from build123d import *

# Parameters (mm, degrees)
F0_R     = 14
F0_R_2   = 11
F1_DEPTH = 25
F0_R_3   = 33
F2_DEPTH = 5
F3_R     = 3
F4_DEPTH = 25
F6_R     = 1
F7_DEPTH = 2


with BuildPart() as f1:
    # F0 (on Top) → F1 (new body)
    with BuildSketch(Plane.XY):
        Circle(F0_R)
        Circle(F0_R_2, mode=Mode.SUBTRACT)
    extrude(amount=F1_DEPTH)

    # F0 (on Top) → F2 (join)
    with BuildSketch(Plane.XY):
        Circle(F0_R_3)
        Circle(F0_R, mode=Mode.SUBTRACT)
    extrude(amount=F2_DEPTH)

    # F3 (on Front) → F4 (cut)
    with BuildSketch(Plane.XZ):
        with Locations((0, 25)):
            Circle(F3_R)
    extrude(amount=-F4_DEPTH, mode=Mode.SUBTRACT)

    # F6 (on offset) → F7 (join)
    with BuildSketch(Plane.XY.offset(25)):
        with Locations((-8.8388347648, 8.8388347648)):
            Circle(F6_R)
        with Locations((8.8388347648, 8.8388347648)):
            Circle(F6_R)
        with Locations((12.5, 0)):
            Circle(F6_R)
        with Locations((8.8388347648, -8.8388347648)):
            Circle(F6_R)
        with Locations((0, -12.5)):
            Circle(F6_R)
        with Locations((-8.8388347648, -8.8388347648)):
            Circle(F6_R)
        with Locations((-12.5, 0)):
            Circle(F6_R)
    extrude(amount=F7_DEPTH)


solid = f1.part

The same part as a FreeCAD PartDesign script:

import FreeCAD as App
import Part
import Sketcher
Q = App.Units.Quantity

doc = App.newDocument("Part")
body = doc.addObject("PartDesign::Body", "Body")

sketch1 = body.newObject("Sketcher::SketchObject", "Sketch")
sketch1.AttachmentSupport = (doc.getObject("XY_Plane"), [""])
sketch1.MapMode = "FlatFace"
sketch1.addGeometry(Part.Circle(App.Vector(0, 0, 0), App.Vector(0, 0, 1), 14), False)
sketch1.addGeometry(Part.Circle(App.Vector(0, 0, 0), App.Vector(0, 0, 1), 11), False)
sketch1.addConstraint(Sketcher.Constraint("Coincident", 0, 3, -1, 1))
sketch1.addConstraint(Sketcher.Constraint("Coincident", 1, 3, -1, 1))
sketch1.addConstraint(Sketcher.Constraint("Diameter", 0, Q("28 mm")))
sketch1.addConstraint(Sketcher.Constraint("Diameter", 1, Q("22 mm")))
pad1 = body.newObject("PartDesign::Pad", "Pad")
pad1.Profile = sketch1
pad1.Length = 25

sketch2 = body.newObject("Sketcher::SketchObject", "Sketch001")
sketch2.AttachmentSupport = (doc.getObject("XY_Plane"), [""])
sketch2.MapMode = "FlatFace"
sketch2.addGeometry(Part.Circle(App.Vector(0, 0, 0), App.Vector(0, 0, 1), 33), False)
sketch2.addGeometry(Part.Circle(App.Vector(0, 0, 0), App.Vector(0, 0, 1), 14), False)
sketch2.addConstraint(Sketcher.Constraint("Coincident", 0, 3, -1, 1))
sketch2.addConstraint(Sketcher.Constraint("Coincident", 1, 3, -1, 1))
sketch2.addConstraint(Sketcher.Constraint("Diameter", 0, Q("66 mm")))
sketch2.addConstraint(Sketcher.Constraint("Diameter", 1, Q("28 mm")))
pad2 = body.newObject("PartDesign::Pad", "Pad001")
pad2.Profile = sketch2
pad2.Length = 5

sketch3 = body.newObject("Sketcher::SketchObject", "Sketch002")
sketch3.AttachmentSupport = (doc.getObject("XZ_Plane"), [""])
sketch3.MapMode = "FlatFace"
sketch3.addGeometry(Part.Circle(App.Vector(0, 25, 0), App.Vector(0, 0, 1), 3), False)
sketch3.addConstraint(Sketcher.Constraint("PointOnObject", 0, 3, -2))
sketch3.addConstraint(Sketcher.Constraint("Diameter", 0, Q("6 mm")))
sketch3.addConstraint(Sketcher.Constraint("DistanceY", -1, 1, 0, 3, Q("25 mm")))
pocket1 = body.newObject("PartDesign::Pocket", "Pocket")
pocket1.Profile = sketch3
pocket1.Length = 25

sketch4 = body.newObject("Sketcher::SketchObject", "Sketch003")
sketch4.AttachmentSupport = (doc.getObject("XY_Plane"), [""])
sketch4.MapMode = "FlatFace"
sketch4.AttachmentOffset = App.Placement(App.Vector(0, 0, 25), App.Rotation())
sketch4.addGeometry(Part.Circle(App.Vector(-8.838835, 8.838835, 0), App.Vector(0, 0, 1), 1), False)
sketch4.addGeometry(Part.Circle(App.Vector(8.838835, 8.838835, 0), App.Vector(0, 0, 1), 1), False)
sketch4.addGeometry(Part.Circle(App.Vector(12.5, 0, 0), App.Vector(0, 0, 1), 1), False)
sketch4.addGeometry(Part.Circle(App.Vector(8.838835, -8.838835, 0), App.Vector(0, 0, 1), 1), False)
sketch4.addGeometry(Part.Circle(App.Vector(0, -12.5, 0), App.Vector(0, 0, 1), 1), False)
sketch4.addGeometry(Part.Circle(App.Vector(-8.838835, -8.838835, 0), App.Vector(0, 0, 1), 1), False)
sketch4.addGeometry(Part.Circle(App.Vector(-12.5, 0, 0), App.Vector(0, 0, 1), 1), False)
sketch4.addConstraint(Sketcher.Constraint("Equal", 0, 1))
sketch4.addConstraint(Sketcher.Constraint("Equal", 1, 2))
sketch4.addConstraint(Sketcher.Constraint("Equal", 2, 3))
sketch4.addConstraint(Sketcher.Constraint("Equal", 3, 4))
sketch4.addConstraint(Sketcher.Constraint("Equal", 4, 5))
sketch4.addConstraint(Sketcher.Constraint("Equal", 5, 6))
sketch4.addConstraint(Sketcher.Constraint("Symmetric", 0, 3, 3, 3, -1, 1))
sketch4.addConstraint(Sketcher.Constraint("Symmetric", 1, 3, 5, 3, -1, 1))
sketch4.addConstraint(Sketcher.Constraint("Symmetric", 2, 3, 6, 3, -1, 1))
sketch4.addConstraint(Sketcher.Constraint("Symmetric", 0, 3, 1, 3, -2))
sketch4.addConstraint(Sketcher.Constraint("PointOnObject", 2, 3, -1))
sketch4.addConstraint(Sketcher.Constraint("PointOnObject", 4, 3, -2))
sketch4.addConstraint(Sketcher.Constraint("Diameter", 0, Q("2 mm")))
sketch4.addConstraint(Sketcher.Constraint("DistanceX", -1, 1, 2, 3, Q("12.5 mm")))
sketch4.addConstraint(Sketcher.Constraint("DistanceY", 4, 3, -1, 1, Q("12.5 mm")))
sketch4.addConstraint(Sketcher.Constraint("DistanceX", 0, 3, 1, 3, Q("17.67767 mm")))
sketch4.addConstraint(Sketcher.Constraint("DistanceY", 3, 3, 1, 3, Q("17.67767 mm")))
pad3 = body.newObject("PartDesign::Pad", "Pad002")
pad3.Profile = sketch4
pad3.Length = 2

doc.recompute()
